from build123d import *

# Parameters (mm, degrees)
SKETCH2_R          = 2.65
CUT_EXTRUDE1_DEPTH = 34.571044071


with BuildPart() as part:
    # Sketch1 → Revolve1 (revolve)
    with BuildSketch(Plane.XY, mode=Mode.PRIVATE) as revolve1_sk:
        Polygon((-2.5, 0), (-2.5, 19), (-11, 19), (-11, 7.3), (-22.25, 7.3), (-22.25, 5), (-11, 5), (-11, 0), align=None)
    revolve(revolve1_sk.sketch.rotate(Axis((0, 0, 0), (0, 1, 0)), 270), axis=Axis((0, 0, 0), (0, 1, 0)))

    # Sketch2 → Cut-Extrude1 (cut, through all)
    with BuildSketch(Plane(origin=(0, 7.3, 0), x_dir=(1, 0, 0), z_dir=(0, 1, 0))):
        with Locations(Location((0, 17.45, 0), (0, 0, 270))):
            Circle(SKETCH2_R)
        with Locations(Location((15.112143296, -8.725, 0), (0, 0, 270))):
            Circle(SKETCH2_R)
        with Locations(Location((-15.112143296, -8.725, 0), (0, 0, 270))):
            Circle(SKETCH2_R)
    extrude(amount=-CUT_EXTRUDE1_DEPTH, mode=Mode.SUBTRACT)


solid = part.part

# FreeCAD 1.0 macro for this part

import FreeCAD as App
import Part
import Sketcher

doc = App.newDocument("Part")
params = doc.addObject("Spreadsheet::Sheet", "Params")
for row, (alias, value) in enumerate([
    ("sketch1_height", "19 mm"),
    ("sketch1_height2", "5 mm"),
    ("sketch1_width", "8.5 mm"),
    ("sketch1_height3", "11.7 mm"),
    ("sketch1_width2", "11.25 mm"),
    ("revolution_angle", "360 deg"),
    ("sketch2_diameter", "5.3 mm"),
], start=1):
    params.set(f"A{row}", alias)
    params.set(f"B{row}", "=" + value)
    params.setAlias(f"B{row}", alias)

body = doc.addObject("PartDesign::Body", "Body")

# Sketch on XY plane
sketch1 = body.newObject("Sketcher::SketchObject", "Sketch")
sketch1.AttachmentSupport = (doc.getObject("XY_Plane"), [""])
sketch1.MapMode = "FlatFace"
sketch1.addGeometry(Part.LineSegment(App.Vector(-2.5, 0, 0), App.Vector(-2.5, 19, 0)), False)
sketch1.addGeometry(Part.LineSegment(App.Vector(-2.5, 19, 0), App.Vector(-11, 19, 0)), False)
sketch1.addGeometry(Part.LineSegment(App.Vector(-11, 19, 0), App.Vector(-11, 7.3, 0)), False)
sketch1.addGeometry(Part.LineSegment(App.Vector(-11, 7.3, 0), App.Vector(-22.2, 7.3, 0)), False)
sketch1.addGeometry(Part.LineSegment(App.Vector(-22.2, 7.3, 0), App.Vector(-22.2, 5, 0)), False)
sketch1.addGeometry(Part.LineSegment(App.Vector(-22.2, 5, 0), App.Vector(-11, 5, 0)), False)
sketch1.addGeometry(Part.LineSegment(App.Vector(-11, 5, 0), App.Vector(-11, 0, 0)), False)
sketch1.addGeometry(Part.LineSegment(App.Vector(-11, 0, 0), App.Vector(-2.5, 0, 0)), False)
sketch1.addConstraint(Sketcher.Constraint("Coincident", 0, 2, 1, 1))
sketch1.addConstraint(Sketcher.Constraint("Coincident", 1, 2, 2, 1))
sketch1.addConstraint(Sketcher.Constraint("Coincident", 2, 2, 3, 1))
sketch1.addConstraint(Sketcher.Constraint("Coincident", 3, 2, 4, 1))
sketch1.addConstraint(Sketcher.Constraint("Coincident", 4, 2, 5, 1))
sketch1.addConstraint(Sketcher.Constraint("Coincident", 5, 2, 6, 1))
sketch1.addConstraint(Sketcher.Constraint("Coincident", 6, 2, 7, 1))
sketch1.addConstraint(Sketcher.Constraint("Coincident", 7, 2, 0, 1))
sketch1.addConstraint(Sketcher.Constraint("Vertical", 0))
sketch1.addConstraint(Sketcher.Constraint("Horizontal", 1))
sketch1.addConstraint(Sketcher.Constraint("Vertical", 2))
sketch1.addConstraint(Sketcher.Constraint("Horizontal", 3))
sketch1.addConstraint(Sketcher.Constraint("Vertical", 4))
sketch1.addConstraint(Sketcher.Constraint("Horizontal", 5))
sketch1.addConstraint(Sketcher.Constraint("Vertical", 6))
sketch1.addConstraint(Sketcher.Constraint("Horizontal", 7))
sketch1.addConstraint(Sketcher.Constraint("PointOnObject", 6, 2, -1))
sketch1.addConstraint(Sketcher.Constraint("Vertical", 2, 2, 5, 2))
sketch1.addConstraint(Sketcher.Constraint("DistanceY", 0, 1, 0, 2, 19.0))
sketch1.addConstraint(Sketcher.Constraint("DistanceY", 6, 2, 6, 1, 5.0))
sketch1.addConstraint(Sketcher.Constraint("DistanceX", 1, 2, 1, 1, 8.5))
sketch1.addConstraint(Sketcher.Constraint("DistanceY", 2, 2, 2, 1, 11.7))
sketch1.addConstraint(Sketcher.Constraint("DistanceX", 1, 2, -1, 1, 11.0))
sketch1.addConstraint(Sketcher.Constraint("DistanceX", 3, 2, 3, 1, 11.25))
sketch1.setExpression("Constraints[18]", "Params.sketch1_height")
sketch1.setExpression("Constraints[19]", "Params.sketch1_height2")
sketch1.setExpression("Constraints[20]", "Params.sketch1_width")
sketch1.setExpression("Constraints[21]", "Params.sketch1_height3")
sketch1.setExpression("Constraints[23]", "Params.sketch1_width2")
revolution = body.newObject("PartDesign::Revolution", "Revolution")
revolution.Profile = sketch1
revolution.ReferenceAxis = (sketch1, ["V_Axis"])
revolution.setExpression("Angle", "Params.revolution_angle")

# Sketch on XZ plane
sketch2 = body.newObject("Sketcher::SketchObject", "Sketch001")
sketch2.AttachmentSupport = (doc.getObject("XZ_Plane"), [""])
sketch2.MapMode = "FlatFace"
sketch2.AttachmentOffset = App.Placement(App.Vector(0, 0, -7.3), App.Rotation())
sketch2.addGeometry(Part.Circle(App.Vector(0, -17.4, 0), App.Vector(0, 0, 1), 2.6), False)
sketch2.addGeometry(Part.Circle(App.Vector(15.1, 8.7, 0), App.Vector(0, 0, 1), 2.6), False)
sketch2.addGeometry(Part.Circle(App.Vector(-15.1, 8.7, 0), App.Vector(0, 0, 1), 2.6), False)
sketch2.addConstraint(Sketcher.Constraint("Equal", 0, 1))
sketch2.addConstraint(Sketcher.Constraint("Equal", 1, 2))
sketch2.addConstraint(Sketcher.Constraint("Symmetric", 1, 3, 2, 3, -2))
sketch2.addConstraint(Sketcher.Constraint("PointOnObject", 0, 3, -2))
sketch2.addConstraint(Sketcher.Constraint("Diameter", 0, 5.3))
sketch2.addConstraint(Sketcher.Constraint("DistanceY", 0, 3, -1, 1, 17.45))
sketch2.addConstraint(Sketcher.Constraint("DistanceY", -1, 1, 1, 3, 8.725))
sketch2.addConstraint(Sketcher.Constraint("DistanceX", -1, 1, 1, 3, 15.112143))
sketch2.setExpression("Constraints[4]", "Params.sketch2_diameter")
pocket1 = body.newObject("PartDesign::Pocket", "Pocket")
pocket1.Profile = sketch2
pocket1.Type = "ThroughAll"
pocket1.Reversed = True

doc.recompute()
